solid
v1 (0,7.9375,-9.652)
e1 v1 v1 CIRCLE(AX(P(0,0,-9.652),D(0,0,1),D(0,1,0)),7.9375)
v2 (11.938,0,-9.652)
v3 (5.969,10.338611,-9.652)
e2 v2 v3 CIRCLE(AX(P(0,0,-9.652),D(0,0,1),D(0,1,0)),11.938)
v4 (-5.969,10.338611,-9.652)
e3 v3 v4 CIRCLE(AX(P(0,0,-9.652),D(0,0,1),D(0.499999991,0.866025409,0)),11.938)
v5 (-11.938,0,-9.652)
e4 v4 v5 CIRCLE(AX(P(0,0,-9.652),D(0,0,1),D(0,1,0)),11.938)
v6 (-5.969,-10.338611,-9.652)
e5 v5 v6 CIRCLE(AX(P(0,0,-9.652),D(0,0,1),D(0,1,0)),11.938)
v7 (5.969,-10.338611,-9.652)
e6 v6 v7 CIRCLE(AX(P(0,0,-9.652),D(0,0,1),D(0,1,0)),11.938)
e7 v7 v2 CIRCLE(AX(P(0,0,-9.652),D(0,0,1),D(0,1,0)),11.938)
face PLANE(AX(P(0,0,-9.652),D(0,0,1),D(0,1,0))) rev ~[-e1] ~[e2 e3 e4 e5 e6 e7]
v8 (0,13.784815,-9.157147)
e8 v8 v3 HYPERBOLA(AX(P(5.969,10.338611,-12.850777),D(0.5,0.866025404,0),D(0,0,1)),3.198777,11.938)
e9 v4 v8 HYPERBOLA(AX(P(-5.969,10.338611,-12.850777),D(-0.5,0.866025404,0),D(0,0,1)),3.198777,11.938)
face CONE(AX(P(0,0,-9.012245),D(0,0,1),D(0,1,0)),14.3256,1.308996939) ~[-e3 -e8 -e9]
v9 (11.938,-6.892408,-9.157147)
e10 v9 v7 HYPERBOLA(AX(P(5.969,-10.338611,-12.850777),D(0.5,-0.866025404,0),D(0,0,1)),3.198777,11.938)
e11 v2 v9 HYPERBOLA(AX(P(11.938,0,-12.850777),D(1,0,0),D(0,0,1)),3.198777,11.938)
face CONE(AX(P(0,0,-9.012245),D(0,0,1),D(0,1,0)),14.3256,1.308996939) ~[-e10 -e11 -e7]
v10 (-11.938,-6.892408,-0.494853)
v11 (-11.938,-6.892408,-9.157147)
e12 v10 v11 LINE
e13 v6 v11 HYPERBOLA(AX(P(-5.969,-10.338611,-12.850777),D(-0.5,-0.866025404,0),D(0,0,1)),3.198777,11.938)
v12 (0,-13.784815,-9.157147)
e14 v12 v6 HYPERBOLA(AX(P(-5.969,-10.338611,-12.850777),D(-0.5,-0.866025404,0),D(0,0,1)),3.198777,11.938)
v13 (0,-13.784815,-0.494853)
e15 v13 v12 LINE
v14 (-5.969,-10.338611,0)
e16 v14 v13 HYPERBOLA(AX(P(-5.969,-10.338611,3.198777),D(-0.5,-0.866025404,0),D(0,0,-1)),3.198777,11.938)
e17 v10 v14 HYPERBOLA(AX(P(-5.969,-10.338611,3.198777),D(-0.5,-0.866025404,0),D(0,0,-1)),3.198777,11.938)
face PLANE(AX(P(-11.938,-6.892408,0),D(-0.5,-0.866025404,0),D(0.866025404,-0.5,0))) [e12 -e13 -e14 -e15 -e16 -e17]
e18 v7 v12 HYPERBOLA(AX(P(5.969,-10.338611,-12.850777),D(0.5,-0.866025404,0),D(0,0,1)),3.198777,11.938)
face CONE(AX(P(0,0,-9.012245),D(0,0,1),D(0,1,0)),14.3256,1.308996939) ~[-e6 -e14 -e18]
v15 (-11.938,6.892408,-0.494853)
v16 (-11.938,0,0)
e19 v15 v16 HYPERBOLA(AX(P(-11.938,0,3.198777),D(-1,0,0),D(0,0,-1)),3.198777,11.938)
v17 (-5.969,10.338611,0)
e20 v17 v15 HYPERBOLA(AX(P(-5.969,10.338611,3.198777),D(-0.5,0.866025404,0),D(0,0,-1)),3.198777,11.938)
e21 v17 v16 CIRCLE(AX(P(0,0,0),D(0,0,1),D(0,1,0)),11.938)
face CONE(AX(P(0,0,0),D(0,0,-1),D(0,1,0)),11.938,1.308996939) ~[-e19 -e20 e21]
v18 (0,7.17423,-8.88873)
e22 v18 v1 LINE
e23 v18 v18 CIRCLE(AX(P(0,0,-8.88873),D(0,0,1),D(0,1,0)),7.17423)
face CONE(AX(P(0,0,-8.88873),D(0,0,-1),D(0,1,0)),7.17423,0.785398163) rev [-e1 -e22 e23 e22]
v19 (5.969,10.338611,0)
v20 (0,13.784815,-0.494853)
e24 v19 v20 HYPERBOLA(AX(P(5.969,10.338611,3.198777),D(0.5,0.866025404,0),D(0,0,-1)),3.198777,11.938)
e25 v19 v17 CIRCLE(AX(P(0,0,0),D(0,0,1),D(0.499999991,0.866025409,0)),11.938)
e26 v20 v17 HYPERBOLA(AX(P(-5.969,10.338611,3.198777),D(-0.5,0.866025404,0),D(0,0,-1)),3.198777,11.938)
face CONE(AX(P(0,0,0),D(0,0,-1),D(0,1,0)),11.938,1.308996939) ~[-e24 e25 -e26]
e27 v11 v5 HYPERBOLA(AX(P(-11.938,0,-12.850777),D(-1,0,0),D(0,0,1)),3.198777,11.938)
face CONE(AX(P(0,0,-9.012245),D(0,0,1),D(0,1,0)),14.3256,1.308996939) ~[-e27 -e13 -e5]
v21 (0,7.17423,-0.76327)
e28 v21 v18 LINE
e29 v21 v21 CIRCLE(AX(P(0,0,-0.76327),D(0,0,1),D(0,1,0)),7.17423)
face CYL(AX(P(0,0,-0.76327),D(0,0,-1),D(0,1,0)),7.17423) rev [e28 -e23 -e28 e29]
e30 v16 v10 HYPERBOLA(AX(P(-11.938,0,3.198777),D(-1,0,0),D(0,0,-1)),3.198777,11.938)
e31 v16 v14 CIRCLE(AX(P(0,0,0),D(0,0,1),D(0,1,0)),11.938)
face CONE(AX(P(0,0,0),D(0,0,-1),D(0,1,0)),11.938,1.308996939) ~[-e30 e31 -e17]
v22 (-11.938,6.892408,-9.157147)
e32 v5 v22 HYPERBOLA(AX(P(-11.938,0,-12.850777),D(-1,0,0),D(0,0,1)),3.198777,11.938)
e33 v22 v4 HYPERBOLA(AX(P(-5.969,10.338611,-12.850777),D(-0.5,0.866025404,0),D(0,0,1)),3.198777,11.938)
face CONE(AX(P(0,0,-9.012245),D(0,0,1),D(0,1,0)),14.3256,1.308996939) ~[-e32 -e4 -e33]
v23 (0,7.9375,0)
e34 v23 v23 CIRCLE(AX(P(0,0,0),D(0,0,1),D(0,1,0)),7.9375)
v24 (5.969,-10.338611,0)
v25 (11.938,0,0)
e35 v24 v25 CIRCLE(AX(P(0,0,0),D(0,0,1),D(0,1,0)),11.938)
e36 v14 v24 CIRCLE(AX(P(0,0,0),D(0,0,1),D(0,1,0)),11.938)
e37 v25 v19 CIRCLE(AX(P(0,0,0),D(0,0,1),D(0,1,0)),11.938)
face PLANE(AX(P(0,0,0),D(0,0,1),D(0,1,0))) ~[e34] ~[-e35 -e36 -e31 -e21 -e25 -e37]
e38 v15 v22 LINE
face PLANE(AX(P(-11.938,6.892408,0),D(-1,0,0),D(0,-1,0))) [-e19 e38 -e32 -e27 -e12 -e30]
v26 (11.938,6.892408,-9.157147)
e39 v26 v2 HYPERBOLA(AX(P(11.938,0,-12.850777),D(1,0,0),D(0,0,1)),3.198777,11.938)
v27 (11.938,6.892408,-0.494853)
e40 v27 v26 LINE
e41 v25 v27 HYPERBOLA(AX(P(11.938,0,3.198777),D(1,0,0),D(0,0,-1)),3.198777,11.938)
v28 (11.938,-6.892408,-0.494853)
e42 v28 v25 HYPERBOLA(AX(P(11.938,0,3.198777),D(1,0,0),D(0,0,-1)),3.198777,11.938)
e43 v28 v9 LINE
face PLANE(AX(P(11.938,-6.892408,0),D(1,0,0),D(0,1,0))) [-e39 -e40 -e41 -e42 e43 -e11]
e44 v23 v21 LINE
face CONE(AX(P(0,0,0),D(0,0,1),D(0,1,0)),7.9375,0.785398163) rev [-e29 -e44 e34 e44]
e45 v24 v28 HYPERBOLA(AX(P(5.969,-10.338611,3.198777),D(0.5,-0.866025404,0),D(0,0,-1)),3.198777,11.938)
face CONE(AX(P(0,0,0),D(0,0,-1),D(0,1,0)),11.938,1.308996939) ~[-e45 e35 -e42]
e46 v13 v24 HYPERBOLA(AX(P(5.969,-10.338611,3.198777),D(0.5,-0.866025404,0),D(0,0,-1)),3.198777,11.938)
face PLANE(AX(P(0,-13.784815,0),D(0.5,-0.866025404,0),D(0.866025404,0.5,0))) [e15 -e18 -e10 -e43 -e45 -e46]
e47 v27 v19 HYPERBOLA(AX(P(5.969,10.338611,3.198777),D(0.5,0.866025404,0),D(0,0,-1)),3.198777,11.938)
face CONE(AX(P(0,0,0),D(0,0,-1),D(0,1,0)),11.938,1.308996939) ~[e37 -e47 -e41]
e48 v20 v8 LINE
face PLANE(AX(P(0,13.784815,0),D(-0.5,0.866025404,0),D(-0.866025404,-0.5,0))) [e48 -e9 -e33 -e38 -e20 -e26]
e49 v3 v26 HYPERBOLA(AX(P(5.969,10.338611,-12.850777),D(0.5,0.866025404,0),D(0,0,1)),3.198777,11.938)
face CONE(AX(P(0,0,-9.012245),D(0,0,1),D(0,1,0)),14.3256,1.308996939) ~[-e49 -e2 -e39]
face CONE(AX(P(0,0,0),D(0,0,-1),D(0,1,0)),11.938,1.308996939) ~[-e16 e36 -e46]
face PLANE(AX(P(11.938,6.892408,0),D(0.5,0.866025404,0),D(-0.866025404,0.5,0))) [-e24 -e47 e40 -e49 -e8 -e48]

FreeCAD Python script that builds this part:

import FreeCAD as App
import Part
import Sketcher
from FreeCAD import Vector
Q = App.Units.Quantity


def add_polygon(sketch, points):
    """Adds a closed chain of lines whose ends are joined by coincident constraints."""
    first, n = sketch.GeometryCount, len(points)
    for a, b in zip(points, points[1:] + points[:1]):
        sketch.addGeometry(Part.LineSegment(App.Vector(*a, 0), App.Vector(*b, 0)), False)
    for i in range(n):
        sketch.addConstraint(Sketcher.Constraint("Coincident", first + i, 2, first + (i + 1) % n, 1))

doc = App.newDocument("Part")
params = doc.addObject("Spreadsheet::Sheet", "Params")
for row, (alias, value) in enumerate([
    ("sketch1_width", "0.47 in"),
    ("sketch1_height", "0.38 in"),
    ("revolution_angle", "360 deg"),
    ("sketch2_width", "1.88 in"),
    ("pocket1_length", "0.38 in"),
    ("sketch3_height", "0.38 in"),
    ("sketch3_width", "0.3125 in"),
    ("groove_angle", "360 deg"),
], start=1):
    params.set(f"A{row}", alias)
    params.set(f"B{row}", "=" + value)
    params.setAlias(f"B{row}", alias)

body = doc.addObject("PartDesign::Body", "Body")

sketch1 = body.newObject("Sketcher::SketchObject", "Sketch")
sketch1.AttachmentSupport = (doc.getObject("YZ_Plane"), [""])
sketch1.MapMode = "FlatFace"
add_polygon(sketch1, [(11.9, 0), (0, 0), (0, -9.7), (11.9, -9.7), (14.3, -9), (14.3, -0.6)])
sketch1.addConstraint([
    Sketcher.Constraint("Horizontal", 0),
    Sketcher.Constraint("Vertical", 1),
    Sketcher.Constraint("Horizontal", 2),
    Sketcher.Constraint("Vertical", 4),
    Sketcher.Constraint("Coincident", 0, 2, -1, 1),
    Sketcher.Constraint("Vertical", 2, 2, 5, 2),
    Sketcher.Constraint("Equal", 3, 5),
    Sketcher.Constraint("Angle", 3, Q("15 deg")),
    Sketcher.Constraint("DistanceX", 0, 2, 0, 1, Q("0.47 in")),
    Sketcher.Constraint("DistanceY", 1, 2, 1, 1, Q("0.38 in")),
    Sketcher.Constraint("DistanceX", -1, 1, 3, 2, Q("0.564 in")),
])
sketch1.setExpression("Constraints[14]", "Params.sketch1_width")
sketch1.setExpression("Constraints[15]", "Params.sketch1_height")
revolution = body.newObject("PartDesign::Revolution", "Revolution")
revolution.Profile = sketch1
revolution.ReferenceAxis = (sketch1, ["V_Axis"])
revolution.setExpression("Angle", "Params.revolution_angle")

sketch2 = body.newObject("Sketcher::SketchObject", "Sketch001")
sketch2.AttachmentSupport = (doc.getObject("XY_Plane"), [""])
sketch2.MapMode = "FlatFace"
add_polygon(sketch2, [(-24, 24), (-24, -24), (24, -24), (24, 24)])
add_polygon(sketch2, [(0, -14), (-12, -7), (-12, 7), (0, 14), (12, 7), (12, -7)])
sketch2.addConstraint([
    Sketcher.Constraint("Vertical", 0),
    Sketcher.Constraint("Horizontal", 1),
    Sketcher.Constraint("Vertical", 2),
    Sketcher.Constraint("Horizontal", 3),
    Sketcher.Constraint("Vertical", 5),
    Sketcher.Constraint("Vertical", 8),
    Sketcher.Constraint("Symmetric", 0, 2, 2, 2, -1, 1),
    Sketcher.Constraint("Symmetric", 4, 2, 7, 2, -1, 1),
    Sketcher.Constraint("Symmetric", 6, 2, 9, 2, -1, 1),
    Sketcher.Constraint("PointOnObject", 6, 2, -2),
    Sketcher.Constraint("Parallel", 6, 9),
    Sketcher.Constraint("Horizontal", 5, 2, 7, 2),
    Sketcher.Constraint("Equal", 3, 0),
    Sketcher.Constraint("Angle", 4, Q("150 deg")),
    Sketcher.Constraint("DistanceX", 1, 1, 1, 2, Q("1.88 in")),
    Sketcher.Constraint("DistanceX", 4, 2, -1, 1, Q("0.47 in")),
    Sketcher.Constraint("DistanceY", 5, 1, 5, 2, Q("13.784815 mm")),
])
sketch2.setExpression("Constraints[24]", "Params.sketch2_width")
pocket1 = body.newObject("PartDesign::Pocket", "Pocket")
pocket1.Profile = sketch2
pocket1.setExpression("Length", "Params.pocket1_length")

sketch3 = body.newObject("Sketcher::SketchObject", "Sketch002")
sketch3.AttachmentSupport = (doc.getObject("YZ_Plane"), [""])
sketch3.MapMode = "FlatFace"
add_polygon(sketch3, [(7.9, 0), (0, 0), (0, -9.7), (7.9, -9.7), (7.2, -8.9), (7.2, -0.8)])
sketch3.addConstraint([
    Sketcher.Constraint("Horizontal", 0),
    Sketcher.Constraint("Vertical", 1),
    Sketcher.Constraint("Horizontal", 2),
    Sketcher.Constraint("Vertical", 4),
    Sketcher.Constraint("Coincident", 0, 2, -1, 1),
    Sketcher.Constraint("Perpendicular", 3, 5),
    Sketcher.Constraint("Vertical", 2, 2, 5, 2),
    Sketcher.Constraint("Equal", 3, 5),
    Sketcher.Constraint("DistanceY", 1, 2, 1, 1, Q("0.38 in")),
    Sketcher.Constraint("DistanceX", 0, 2, 0, 1, Q("0.3125 in")),
    Sketcher.Constraint("DistanceY", 4, 1, 4, 2, Q("0.3199 in")),
])
sketch3.setExpression("Constraints[14]", "Params.sketch3_height")
sketch3.setExpression("Constraints[15]", "Params.sketch3_width")
groove = body.newObject("PartDesign::Groove", "Groove")
groove.Profile = sketch3
groove.ReferenceAxis = (sketch3, ["V_Axis"])
groove.setExpression("Angle", "Params.groove_angle")

doc.recompute()
